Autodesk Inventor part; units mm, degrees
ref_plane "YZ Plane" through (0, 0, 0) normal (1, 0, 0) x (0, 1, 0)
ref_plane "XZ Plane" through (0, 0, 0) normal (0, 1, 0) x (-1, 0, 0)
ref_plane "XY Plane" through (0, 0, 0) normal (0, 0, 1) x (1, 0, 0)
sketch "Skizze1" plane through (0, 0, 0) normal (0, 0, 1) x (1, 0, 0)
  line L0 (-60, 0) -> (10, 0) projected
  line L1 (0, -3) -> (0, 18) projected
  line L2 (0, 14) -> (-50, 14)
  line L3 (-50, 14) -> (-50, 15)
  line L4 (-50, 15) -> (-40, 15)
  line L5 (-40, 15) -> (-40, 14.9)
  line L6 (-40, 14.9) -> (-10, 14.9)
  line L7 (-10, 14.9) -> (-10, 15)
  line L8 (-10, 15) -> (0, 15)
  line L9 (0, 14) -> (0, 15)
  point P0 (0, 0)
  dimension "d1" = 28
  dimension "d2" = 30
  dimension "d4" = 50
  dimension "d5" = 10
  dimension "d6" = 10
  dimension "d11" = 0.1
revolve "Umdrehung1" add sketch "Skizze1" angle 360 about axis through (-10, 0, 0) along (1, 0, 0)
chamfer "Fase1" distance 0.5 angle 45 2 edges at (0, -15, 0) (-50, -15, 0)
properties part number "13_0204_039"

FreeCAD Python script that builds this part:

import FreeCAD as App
import Part
import Sketcher
from FreeCAD import Vector


def edges_at(feature, points):
    """Names of the edges that pass closest to the given points."""
    edges = feature.Shape.Edges
    near = lambda p: min(range(len(edges)), key=lambda i: edges[i].distToShape(Part.Vertex(*p))[0])
    return sorted({f"Edge{near(p) + 1}" for p in points})


def add_polygon(sketch, points):
    """Adds a closed chain of lines whose ends are joined by coincident constraints."""
    first, n = sketch.GeometryCount, len(points)
    for a, b in zip(points, points[1:] + points[:1]):
        sketch.addGeometry(Part.LineSegment(App.Vector(*a, 0), App.Vector(*b, 0)), False)
    for i in range(n):
        sketch.addConstraint(Sketcher.Constraint("Coincident", first + i, 2, first + (i + 1) % n, 1))

doc = App.newDocument("Part")
params = doc.addObject("Spreadsheet::Sheet", "Params")
for row, (alias, value) in enumerate([
    ("sketch1_width", "50 mm"),
    ("sketch1_width2", "10 mm"),
    ("sketch1_height", "0.1 mm"),
    ("sketch1_height2", "1 mm"),
    ("revolution_angle", "360 deg"),
    ("chamfer_size", "0.5 mm"),
], start=1):
    params.set(f"A{row}", alias)
    params.set(f"B{row}", "=" + value)
    params.setAlias(f"B{row}", alias)

body = doc.addObject("PartDesign::Body", "Body")

sketch1 = body.newObject("Sketcher::SketchObject", "Sketch")
sketch1.AttachmentSupport = (doc.getObject("XY_Plane"), [""])
sketch1.MapMode = "FlatFace"
add_polygon(sketch1, [(-50, 14), (0, 14), (0, 15), (-10, 15), (-10, 14.9), (-40, 14.9), (-40, 15), (-50, 15)])
sketch1.addConstraint([
    Sketcher.Constraint("Horizontal", 0),
    Sketcher.Constraint("Vertical", 1),
    Sketcher.Constraint("Horizontal", 2),
    Sketcher.Constraint("Vertical", 3),
    Sketcher.Constraint("Horizontal", 4),
    Sketcher.Constraint("Vertical", 5),
    Sketcher.Constraint("Horizontal", 6),
    Sketcher.Constraint("Vertical", 7),
    Sketcher.Constraint("PointOnObject", 0, 2, -2),
    Sketcher.Constraint("Horizontal", 2, 2, 5, 2),
    Sketcher.Constraint("Equal", 2, 6),
    Sketcher.Constraint("DistanceX", 0, 1, 0, 2, 50.0),
    Sketcher.Constraint("DistanceX", 2, 2, 2, 1, 10.0),
    Sketcher.Constraint("DistanceY", 3, 2, 3, 1, 0.1),
    Sketcher.Constraint("DistanceY", 1, 1, 1, 2, 1.0),
    Sketcher.Constraint("DistanceY", -1, 1, 0, 2, 14.0),
])
sketch1.setExpression("Constraints[19]", "Params.sketch1_width")
sketch1.setExpression("Constraints[20]", "Params.sketch1_width2")
sketch1.setExpression("Constraints[21]", "Params.sketch1_height")
sketch1.setExpression("Constraints[22]", "Params.sketch1_height2")
revolution = body.newObject("PartDesign::Revolution", "Revolution")
revolution.Profile = sketch1
revolution.ReferenceAxis = (sketch1, ["H_Axis"])
revolution.setExpression("Angle", "Params.revolution_angle")
doc.recompute()

chamfer = body.newObject("PartDesign::Chamfer", "Chamfer")
chamfer.Base = (revolution, edges_at(revolution, [(0, -15, 0), (-50, -15, 0)]))
chamfer.setExpression("Size", "Params.chamfer_size")

doc.recompute()
